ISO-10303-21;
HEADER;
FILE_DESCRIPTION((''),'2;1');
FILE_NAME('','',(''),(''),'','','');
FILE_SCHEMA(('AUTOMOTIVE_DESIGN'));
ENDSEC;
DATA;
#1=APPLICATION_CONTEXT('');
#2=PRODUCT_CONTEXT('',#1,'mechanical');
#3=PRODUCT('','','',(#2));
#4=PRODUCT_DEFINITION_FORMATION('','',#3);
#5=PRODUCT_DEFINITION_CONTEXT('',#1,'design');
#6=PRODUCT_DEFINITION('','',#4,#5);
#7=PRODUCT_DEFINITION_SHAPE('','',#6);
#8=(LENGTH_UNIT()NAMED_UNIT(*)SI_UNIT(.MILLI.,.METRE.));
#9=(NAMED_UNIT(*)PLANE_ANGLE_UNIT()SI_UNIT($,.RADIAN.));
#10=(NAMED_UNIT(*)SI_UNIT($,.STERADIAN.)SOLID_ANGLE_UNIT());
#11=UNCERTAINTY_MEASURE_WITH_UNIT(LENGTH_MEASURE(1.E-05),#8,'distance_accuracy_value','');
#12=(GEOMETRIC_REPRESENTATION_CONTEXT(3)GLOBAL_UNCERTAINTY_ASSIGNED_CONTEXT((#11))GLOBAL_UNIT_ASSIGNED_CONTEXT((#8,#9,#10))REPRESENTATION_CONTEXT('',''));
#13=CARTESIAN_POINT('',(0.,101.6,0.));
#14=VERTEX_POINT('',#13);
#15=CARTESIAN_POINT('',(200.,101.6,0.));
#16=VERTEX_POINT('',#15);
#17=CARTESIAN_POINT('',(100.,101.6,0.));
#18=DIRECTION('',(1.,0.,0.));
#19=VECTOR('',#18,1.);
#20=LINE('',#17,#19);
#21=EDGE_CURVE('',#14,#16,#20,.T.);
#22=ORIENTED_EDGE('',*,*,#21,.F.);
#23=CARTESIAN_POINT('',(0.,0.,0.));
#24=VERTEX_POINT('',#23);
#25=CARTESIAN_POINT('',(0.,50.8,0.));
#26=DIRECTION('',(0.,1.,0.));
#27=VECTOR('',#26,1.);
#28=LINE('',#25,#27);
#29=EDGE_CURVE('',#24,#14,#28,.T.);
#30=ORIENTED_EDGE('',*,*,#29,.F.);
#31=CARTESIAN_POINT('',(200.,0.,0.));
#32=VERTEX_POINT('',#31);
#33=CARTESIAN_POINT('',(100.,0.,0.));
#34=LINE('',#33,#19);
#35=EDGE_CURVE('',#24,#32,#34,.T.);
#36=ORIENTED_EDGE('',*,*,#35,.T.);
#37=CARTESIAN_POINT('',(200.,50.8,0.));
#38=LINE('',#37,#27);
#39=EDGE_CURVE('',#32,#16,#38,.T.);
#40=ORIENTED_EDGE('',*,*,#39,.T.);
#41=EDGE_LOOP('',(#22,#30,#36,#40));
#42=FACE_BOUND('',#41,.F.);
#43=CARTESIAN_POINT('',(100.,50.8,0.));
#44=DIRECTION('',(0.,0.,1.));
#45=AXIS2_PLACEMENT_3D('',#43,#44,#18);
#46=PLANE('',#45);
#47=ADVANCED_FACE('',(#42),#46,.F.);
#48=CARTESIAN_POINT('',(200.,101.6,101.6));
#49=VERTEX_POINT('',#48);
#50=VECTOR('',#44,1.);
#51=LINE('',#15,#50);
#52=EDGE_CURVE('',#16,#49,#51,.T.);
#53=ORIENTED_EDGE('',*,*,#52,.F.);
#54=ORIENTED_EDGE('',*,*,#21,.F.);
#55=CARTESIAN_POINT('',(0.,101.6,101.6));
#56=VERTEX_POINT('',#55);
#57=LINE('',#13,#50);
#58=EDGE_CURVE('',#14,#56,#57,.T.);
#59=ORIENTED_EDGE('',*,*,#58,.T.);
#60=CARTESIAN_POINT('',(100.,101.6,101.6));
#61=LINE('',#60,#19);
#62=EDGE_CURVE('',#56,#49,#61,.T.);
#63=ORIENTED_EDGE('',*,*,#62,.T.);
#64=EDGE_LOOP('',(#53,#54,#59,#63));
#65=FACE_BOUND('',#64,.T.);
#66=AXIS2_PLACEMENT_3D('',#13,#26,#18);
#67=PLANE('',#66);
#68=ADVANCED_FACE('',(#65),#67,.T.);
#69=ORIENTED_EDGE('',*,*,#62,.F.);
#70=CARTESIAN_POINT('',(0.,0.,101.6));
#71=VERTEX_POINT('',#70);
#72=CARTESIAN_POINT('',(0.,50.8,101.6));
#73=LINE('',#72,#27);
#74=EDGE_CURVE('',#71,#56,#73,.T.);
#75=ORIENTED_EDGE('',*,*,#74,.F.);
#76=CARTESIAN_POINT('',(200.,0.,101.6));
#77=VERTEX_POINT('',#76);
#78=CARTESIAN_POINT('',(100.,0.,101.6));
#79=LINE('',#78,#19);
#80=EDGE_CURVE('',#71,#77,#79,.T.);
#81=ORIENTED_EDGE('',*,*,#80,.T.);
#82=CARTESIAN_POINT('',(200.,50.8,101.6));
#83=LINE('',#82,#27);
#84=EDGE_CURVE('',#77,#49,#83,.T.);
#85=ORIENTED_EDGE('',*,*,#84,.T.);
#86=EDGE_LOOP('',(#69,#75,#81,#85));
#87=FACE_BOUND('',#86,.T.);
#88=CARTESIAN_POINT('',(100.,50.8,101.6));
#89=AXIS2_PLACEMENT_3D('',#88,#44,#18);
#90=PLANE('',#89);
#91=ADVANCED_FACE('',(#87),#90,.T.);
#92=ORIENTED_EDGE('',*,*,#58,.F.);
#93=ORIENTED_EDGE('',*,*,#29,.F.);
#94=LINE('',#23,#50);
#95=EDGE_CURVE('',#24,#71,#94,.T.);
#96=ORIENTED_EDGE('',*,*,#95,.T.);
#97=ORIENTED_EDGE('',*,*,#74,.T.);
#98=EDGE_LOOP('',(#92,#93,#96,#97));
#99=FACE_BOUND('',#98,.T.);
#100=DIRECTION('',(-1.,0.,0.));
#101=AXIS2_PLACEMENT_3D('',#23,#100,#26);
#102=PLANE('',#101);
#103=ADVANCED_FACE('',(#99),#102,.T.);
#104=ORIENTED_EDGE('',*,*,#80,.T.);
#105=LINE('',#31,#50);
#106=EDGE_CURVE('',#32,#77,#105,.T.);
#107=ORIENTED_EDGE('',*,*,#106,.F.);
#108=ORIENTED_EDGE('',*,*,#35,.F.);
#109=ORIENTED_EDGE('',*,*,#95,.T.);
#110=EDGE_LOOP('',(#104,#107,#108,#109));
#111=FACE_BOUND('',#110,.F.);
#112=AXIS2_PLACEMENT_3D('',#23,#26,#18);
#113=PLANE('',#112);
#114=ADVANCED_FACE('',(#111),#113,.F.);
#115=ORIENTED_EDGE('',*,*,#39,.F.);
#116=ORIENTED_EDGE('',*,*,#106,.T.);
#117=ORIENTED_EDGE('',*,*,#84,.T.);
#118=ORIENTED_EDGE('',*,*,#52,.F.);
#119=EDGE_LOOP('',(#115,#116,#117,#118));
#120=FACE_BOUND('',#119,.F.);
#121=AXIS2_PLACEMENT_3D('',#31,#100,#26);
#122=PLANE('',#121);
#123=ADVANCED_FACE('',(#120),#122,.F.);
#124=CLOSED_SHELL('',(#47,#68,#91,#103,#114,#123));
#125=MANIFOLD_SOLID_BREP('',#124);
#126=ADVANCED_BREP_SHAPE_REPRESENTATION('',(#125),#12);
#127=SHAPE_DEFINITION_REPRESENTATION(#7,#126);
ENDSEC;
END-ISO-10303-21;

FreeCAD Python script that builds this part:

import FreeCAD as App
import Part
import Sketcher

V = App.Vector
Q = App.Units.Quantity

doc = App.newDocument("Part")
params = doc.addObject("Spreadsheet::Sheet", "Params")
for row, (alias, value) in enumerate([
    ("sketch1_width", "200 mm"),
    ("sketch1_height", "101.6 mm"),
    ("pad1_length", "101.6 mm"),
], start=1):
    params.set(f"A{row}", alias)
    params.set(f"B{row}", "=" + value)
    params.setAlias(f"B{row}", alias)

body = doc.addObject("PartDesign::Body", "Body")

sketch1 = body.newObject("Sketcher::SketchObject", "Sketch")
sketch1.AttachmentSupport = (doc.getObject("XY_Plane"), [""])
sketch1.MapMode = "FlatFace"
sketch1.addGeometry(Part.LineSegment(V(0, 101.6, 0), V(0, 0, 0)), False)
sketch1.addGeometry(Part.LineSegment(V(0, 0, 0), V(200, 0, 0)), False)
sketch1.addGeometry(Part.LineSegment(V(200, 0, 0), V(200, 101.6, 0)), False)
sketch1.addGeometry(Part.LineSegment(V(200, 101.6, 0), V(0, 101.6, 0)), False)
sketch1.addConstraint(Sketcher.Constraint("Coincident", 0, 2, 1, 1))
sketch1.addConstraint(Sketcher.Constraint("Coincident", 1, 2, 2, 1))
sketch1.addConstraint(Sketcher.Constraint("Coincident", 2, 2, 3, 1))
sketch1.addConstraint(Sketcher.Constraint("Coincident", 3, 2, 0, 1))
sketch1.addConstraint(Sketcher.Constraint("Vertical", 0))
sketch1.addConstraint(Sketcher.Constraint("Horizontal", 1))
sketch1.addConstraint(Sketcher.Constraint("Vertical", 2))
sketch1.addConstraint(Sketcher.Constraint("Horizontal", 3))
sketch1.addConstraint(Sketcher.Constraint("Coincident", 0, 2, -1, 1))
sketch1.addConstraint(Sketcher.Constraint("DistanceX", 1, 1, 1, 2, Q("200 mm")))
sketch1.addConstraint(Sketcher.Constraint("DistanceY", 0, 2, 0, 1, Q("101.6 mm")))
sketch1.setExpression("Constraints[9]", "Params.sketch1_width")
sketch1.setExpression("Constraints[10]", "Params.sketch1_height")
pad1 = body.newObject("PartDesign::Pad", "Pad")
pad1.Profile = sketch1
pad1.setExpression("Length", "Params.pad1_length")

doc.recompute()
